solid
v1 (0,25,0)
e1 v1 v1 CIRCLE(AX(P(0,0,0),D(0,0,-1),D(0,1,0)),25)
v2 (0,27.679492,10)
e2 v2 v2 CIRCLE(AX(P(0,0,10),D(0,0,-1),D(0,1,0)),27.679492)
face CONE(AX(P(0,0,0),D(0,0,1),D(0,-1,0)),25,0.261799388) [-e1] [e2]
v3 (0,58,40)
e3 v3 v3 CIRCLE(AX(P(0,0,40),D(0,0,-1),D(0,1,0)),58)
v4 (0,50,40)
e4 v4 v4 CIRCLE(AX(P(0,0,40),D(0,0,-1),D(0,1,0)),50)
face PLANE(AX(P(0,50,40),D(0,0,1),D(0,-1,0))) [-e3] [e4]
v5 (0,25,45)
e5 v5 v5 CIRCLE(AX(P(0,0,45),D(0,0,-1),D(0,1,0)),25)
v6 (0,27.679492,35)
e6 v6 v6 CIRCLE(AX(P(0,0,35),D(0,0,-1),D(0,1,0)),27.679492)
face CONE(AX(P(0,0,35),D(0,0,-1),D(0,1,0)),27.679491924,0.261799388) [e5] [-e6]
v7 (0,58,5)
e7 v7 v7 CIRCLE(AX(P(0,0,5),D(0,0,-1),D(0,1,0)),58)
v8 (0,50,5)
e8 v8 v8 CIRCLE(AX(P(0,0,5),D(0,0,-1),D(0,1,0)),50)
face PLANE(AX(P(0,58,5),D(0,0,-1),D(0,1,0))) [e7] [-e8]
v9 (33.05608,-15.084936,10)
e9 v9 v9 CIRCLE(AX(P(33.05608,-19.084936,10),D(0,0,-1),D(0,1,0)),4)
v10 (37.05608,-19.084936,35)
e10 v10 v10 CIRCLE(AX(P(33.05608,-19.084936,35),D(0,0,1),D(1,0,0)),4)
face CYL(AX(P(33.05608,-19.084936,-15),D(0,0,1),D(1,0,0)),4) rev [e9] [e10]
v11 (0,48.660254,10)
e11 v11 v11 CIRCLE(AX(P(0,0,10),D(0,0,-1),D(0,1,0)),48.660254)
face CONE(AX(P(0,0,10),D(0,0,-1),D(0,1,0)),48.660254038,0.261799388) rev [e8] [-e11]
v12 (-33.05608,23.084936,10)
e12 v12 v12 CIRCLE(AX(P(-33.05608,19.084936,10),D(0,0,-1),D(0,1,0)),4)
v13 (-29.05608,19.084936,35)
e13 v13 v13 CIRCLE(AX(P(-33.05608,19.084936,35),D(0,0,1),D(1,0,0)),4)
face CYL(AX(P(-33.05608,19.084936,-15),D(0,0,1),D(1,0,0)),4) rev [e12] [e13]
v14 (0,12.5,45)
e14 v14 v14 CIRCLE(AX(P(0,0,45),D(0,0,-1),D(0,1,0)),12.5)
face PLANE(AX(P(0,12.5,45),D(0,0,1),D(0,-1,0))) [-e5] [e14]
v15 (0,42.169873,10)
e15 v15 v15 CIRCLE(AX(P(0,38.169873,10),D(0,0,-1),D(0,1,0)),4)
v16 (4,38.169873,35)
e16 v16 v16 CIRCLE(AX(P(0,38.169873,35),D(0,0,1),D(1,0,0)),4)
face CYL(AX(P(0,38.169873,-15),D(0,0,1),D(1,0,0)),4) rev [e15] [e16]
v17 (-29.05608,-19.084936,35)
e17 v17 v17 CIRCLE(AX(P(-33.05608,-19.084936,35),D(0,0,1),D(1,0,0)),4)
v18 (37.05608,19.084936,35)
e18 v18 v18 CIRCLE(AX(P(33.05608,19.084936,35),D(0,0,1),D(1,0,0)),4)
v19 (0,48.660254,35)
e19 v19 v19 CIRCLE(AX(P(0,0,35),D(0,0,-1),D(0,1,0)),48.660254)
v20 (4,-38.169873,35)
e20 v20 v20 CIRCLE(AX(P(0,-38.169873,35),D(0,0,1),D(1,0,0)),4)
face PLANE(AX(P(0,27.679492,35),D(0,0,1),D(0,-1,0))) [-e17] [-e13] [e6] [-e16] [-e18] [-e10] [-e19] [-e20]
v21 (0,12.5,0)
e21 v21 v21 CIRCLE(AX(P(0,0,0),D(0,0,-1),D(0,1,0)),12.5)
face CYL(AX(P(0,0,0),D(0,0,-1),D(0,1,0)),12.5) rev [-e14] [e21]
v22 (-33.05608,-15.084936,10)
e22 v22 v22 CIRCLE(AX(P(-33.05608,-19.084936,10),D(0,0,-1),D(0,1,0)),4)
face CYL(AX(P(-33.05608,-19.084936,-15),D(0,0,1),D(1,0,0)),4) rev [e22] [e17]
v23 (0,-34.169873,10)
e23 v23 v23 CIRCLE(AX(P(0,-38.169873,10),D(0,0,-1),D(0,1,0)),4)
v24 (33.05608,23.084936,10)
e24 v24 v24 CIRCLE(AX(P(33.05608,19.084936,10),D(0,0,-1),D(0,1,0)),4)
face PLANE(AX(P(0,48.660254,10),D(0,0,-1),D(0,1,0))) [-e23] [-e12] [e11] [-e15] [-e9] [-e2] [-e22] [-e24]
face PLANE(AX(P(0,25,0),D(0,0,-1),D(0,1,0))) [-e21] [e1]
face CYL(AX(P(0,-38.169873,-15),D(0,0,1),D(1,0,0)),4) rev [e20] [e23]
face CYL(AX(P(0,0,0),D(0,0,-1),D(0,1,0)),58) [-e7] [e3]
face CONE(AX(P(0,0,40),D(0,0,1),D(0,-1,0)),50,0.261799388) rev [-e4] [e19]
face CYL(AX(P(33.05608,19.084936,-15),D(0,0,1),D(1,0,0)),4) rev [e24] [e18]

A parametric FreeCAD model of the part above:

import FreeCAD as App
import Part
import Sketcher

V = App.Vector
Q = App.Units.Quantity


def add_polygon(sketch, points):
    """Adds a closed chain of lines whose ends are joined by coincident constraints."""
    first, n = sketch.GeometryCount, len(points)
    for a, b in zip(points, points[1:] + points[:1]):
        sketch.addGeometry(Part.LineSegment(App.Vector(*a, 0), App.Vector(*b, 0)), False)
    for i in range(n):
        sketch.addConstraint(Sketcher.Constraint("Coincident", first + i, 2, first + (i + 1) % n, 1))

doc = App.newDocument("Part")
body = doc.addObject("PartDesign::Body", "Body")

# Sketch on YZ plane
sketch1 = body.newObject("Sketcher::SketchObject", "Sketch")
sketch1.AttachmentSupport = (doc.getObject("YZ_Plane"), [""])
sketch1.MapMode = "FlatFace"
add_polygon(sketch1, [(25, 45), (12, 45), (12, 0), (25, 0), (28, 10), (49, 10), (50, 5), (58, 5), (58, 40), (50, 40), (49, 35), (28, 35)])  # lines 0-11
sketch1.addConstraint([
    Sketcher.Constraint("Horizontal", 0),
    Sketcher.Constraint("Vertical", 1),
    Sketcher.Constraint("Horizontal", 2),
    Sketcher.Constraint("Horizontal", 4),
    Sketcher.Constraint("Horizontal", 6),
    Sketcher.Constraint("Vertical", 7),
    Sketcher.Constraint("Horizontal", 8),
    Sketcher.Constraint("Horizontal", 10),
    Sketcher.Constraint("PointOnObject", 1, 2, -1),
    Sketcher.Constraint("Parallel", 3, 9),
    Sketcher.Constraint("Parallel", 5, 11),
    Sketcher.Constraint("Vertical", 5, 2, 8, 2),
    Sketcher.Constraint("Vertical", 4, 2, 9, 2),
    Sketcher.Constraint("Vertical", 3, 2, 10, 2),
    Sketcher.Constraint("Vertical", 2, 2, 11, 2),
    Sketcher.Constraint("Equal", 5, 9),
    Sketcher.Constraint("DistanceX", 6, 1, 6, 2, 8.0),
    Sketcher.Constraint("DistanceY", 1, 2, 1, 1, 45.0),
    Sketcher.Constraint("DistanceY", 7, 1, 7, 2, 35.0),
    Sketcher.Constraint("Angle", 3, Q("75 deg")),
    Sketcher.Constraint("DistanceX", 0, 2, 0, 1, 12.5),
    Sketcher.Constraint("DistanceX", -1, 1, 2, 2, 25.0),
    Sketcher.Constraint("DistanceY", -1, 1, 3, 2, 10.0),
    Sketcher.Constraint("DistanceX", -1, 1, 5, 2, 50.0),
])
revolution = body.newObject("PartDesign::Revolution", "Revolution")
revolution.Profile = sketch1
revolution.ReferenceAxis = (sketch1, ["V_Axis"])
revolution.Angle = 360

# Sketch on XY plane
sketch2 = body.newObject("Sketcher::SketchObject", "Sketch001")
sketch2.AttachmentSupport = (doc.getObject("XY_Plane"), [""])
sketch2.MapMode = "FlatFace"
sketch2.AttachmentOffset = App.Placement(V(0, 0, 35), App.Rotation())
sketch2.addGeometry([
    Part.Circle(V(-33.1, -19.1, 0), V(0, 0, 1), 4),  # 0
    Part.Circle(V(0, 38.2, 0), V(0, 0, 1), 4),  # 1
    Part.Circle(V(-33.1, 19.1, 0), V(0, 0, 1), 4),  # 2
    Part.Circle(V(0, -38.2, 0), V(0, 0, 1), 4),  # 3
    Part.Circle(V(33.1, -19.1, 0), V(0, 0, 1), 4),  # 4
    Part.Circle(V(33.1, 19.1, 0), V(0, 0, 1), 4),  # 5
], False)
sketch2.addConstraint([
    Sketcher.Constraint("Equal", 0, 1),
    Sketcher.Constraint("Equal", 1, 2),
    Sketcher.Constraint("Equal", 2, 3),
    Sketcher.Constraint("Equal", 3, 4),
    Sketcher.Constraint("Equal", 4, 5),
    Sketcher.Constraint("Symmetric", 1, 3, 3, 3, -1, 1),
    Sketcher.Constraint("Symmetric", 2, 3, 4, 3, -1, 1),
    Sketcher.Constraint("Symmetric", 0, 3, 5, 3, -1, 1),
    Sketcher.Constraint("Symmetric", 0, 3, 4, 3, -2),
    Sketcher.Constraint("PointOnObject", 1, 3, -2),
    Sketcher.Constraint("Diameter", 0, 8.0),
    Sketcher.Constraint("DistanceX", 0, 3, -1, 1, 33.05608),
    Sketcher.Constraint("DistanceY", 0, 3, 1, 3, 57.254809),
    Sketcher.Constraint("DistanceY", 0, 3, -1, 1, 19.084936),
])
pocket1 = body.newObject("PartDesign::Pocket", "Pocket")
pocket1.Profile = sketch2
pocket1.Length = 50

doc.recompute()
